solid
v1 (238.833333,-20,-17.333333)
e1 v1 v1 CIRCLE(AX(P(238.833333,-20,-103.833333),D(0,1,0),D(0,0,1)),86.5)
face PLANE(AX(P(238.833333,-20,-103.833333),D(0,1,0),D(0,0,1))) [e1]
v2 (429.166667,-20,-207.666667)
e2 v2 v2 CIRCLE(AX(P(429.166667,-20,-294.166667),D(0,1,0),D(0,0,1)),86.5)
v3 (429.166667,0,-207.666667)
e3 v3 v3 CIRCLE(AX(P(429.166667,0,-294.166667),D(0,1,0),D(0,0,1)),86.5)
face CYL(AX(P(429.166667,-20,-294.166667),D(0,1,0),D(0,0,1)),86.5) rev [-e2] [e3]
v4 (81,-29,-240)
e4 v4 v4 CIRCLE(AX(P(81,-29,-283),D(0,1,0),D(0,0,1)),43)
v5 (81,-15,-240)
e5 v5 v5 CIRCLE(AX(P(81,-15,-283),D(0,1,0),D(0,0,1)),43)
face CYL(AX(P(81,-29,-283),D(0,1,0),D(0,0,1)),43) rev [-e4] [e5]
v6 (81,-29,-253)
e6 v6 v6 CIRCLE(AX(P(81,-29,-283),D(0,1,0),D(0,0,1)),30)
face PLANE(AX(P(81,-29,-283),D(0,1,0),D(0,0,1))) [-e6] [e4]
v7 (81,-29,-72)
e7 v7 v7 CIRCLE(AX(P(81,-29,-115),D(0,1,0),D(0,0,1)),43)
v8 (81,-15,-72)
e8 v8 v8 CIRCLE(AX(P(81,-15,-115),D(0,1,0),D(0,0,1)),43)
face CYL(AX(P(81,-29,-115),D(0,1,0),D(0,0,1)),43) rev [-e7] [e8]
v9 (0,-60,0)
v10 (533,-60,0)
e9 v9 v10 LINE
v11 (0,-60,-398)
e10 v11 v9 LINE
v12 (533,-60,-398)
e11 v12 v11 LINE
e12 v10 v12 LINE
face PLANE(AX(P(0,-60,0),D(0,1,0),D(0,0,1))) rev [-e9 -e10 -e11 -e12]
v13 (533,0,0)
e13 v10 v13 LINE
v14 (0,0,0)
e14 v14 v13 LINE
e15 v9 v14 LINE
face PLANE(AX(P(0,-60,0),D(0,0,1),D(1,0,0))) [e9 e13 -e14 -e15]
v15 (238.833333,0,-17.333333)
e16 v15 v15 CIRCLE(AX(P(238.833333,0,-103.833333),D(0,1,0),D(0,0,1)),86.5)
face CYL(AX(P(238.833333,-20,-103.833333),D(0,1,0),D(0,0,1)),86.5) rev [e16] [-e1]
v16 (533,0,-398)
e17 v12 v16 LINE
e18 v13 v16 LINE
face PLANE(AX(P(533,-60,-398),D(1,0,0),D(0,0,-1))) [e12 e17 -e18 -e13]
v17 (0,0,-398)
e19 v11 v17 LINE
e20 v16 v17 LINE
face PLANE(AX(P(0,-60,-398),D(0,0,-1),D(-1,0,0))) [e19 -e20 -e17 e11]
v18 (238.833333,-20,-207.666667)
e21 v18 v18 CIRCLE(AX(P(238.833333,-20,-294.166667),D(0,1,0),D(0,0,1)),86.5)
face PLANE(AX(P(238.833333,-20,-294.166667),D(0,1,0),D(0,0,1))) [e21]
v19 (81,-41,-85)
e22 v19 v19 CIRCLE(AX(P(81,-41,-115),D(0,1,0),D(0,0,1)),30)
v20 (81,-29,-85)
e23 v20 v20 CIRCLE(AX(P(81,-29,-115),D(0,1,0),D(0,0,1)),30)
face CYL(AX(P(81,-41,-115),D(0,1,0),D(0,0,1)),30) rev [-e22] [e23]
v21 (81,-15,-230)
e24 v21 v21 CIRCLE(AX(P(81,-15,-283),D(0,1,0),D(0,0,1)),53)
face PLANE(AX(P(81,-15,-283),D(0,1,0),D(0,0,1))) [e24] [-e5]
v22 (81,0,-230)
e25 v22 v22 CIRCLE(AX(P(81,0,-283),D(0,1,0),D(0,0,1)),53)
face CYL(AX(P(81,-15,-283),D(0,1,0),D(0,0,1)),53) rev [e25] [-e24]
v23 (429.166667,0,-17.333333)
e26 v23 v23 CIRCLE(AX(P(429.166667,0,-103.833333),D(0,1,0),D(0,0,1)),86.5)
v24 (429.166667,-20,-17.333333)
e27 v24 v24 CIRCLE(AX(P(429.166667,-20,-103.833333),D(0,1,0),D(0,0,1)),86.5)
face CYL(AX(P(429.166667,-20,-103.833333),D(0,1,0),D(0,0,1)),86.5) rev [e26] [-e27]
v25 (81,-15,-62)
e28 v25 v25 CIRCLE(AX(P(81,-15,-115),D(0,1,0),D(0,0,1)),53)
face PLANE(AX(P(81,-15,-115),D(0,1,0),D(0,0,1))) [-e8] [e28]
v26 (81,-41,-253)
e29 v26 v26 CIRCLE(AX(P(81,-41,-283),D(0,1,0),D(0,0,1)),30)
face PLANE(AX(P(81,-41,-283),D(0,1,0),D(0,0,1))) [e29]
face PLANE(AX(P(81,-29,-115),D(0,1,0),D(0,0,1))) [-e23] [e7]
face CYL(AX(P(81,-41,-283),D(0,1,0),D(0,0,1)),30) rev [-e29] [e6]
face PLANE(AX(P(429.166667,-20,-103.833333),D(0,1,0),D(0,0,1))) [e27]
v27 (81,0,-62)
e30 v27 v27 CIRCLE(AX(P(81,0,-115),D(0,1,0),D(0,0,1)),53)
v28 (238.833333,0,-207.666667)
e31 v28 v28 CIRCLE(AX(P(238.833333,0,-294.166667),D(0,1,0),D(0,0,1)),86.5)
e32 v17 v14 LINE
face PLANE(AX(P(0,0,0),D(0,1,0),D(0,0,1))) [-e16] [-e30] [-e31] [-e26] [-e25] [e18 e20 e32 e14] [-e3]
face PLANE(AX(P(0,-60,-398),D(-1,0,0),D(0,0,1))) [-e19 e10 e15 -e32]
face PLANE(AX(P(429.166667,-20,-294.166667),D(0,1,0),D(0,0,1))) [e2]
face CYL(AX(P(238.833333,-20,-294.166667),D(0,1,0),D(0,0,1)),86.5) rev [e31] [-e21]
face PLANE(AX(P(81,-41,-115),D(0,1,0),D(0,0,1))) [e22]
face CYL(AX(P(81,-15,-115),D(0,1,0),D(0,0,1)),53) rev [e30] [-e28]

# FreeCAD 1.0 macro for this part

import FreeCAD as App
import Part
import Sketcher
from FreeCAD import Vector


def add_polygon(sketch, points):
    """Adds a closed chain of lines whose ends are joined by coincident constraints."""
    first, n = sketch.GeometryCount, len(points)
    for a, b in zip(points, points[1:] + points[:1]):
        sketch.addGeometry(Part.LineSegment(App.Vector(*a, 0), App.Vector(*b, 0)), False)
    for i in range(n):
        sketch.addConstraint(Sketcher.Constraint("Coincident", first + i, 2, first + (i + 1) % n, 1))

doc = App.newDocument("Part")
params = doc.addObject("Spreadsheet::Sheet", "Params")
for row, (alias, value) in enumerate([
    ("sketch1_width", "533 mm"),
    ("sketch1_height", "398 mm"),
    ("pad1_length", "60 mm"),
    ("sketch2_diameter", "173 mm"),
    ("pocket1_length", "20 mm"),
    ("sketch3_diameter", "106 mm"),
    ("pocket2_length", "15 mm"),
    ("sketch4_diameter", "86 mm"),
    ("pocket3_length", "14 mm"),
    ("sketch5_diameter", "60 mm"),
    ("pocket4_length", "12 mm"),
], start=1):
    params.set(f"A{row}", alias)
    params.set(f"B{row}", "=" + value)
    params.setAlias(f"B{row}", alias)

body = doc.addObject("PartDesign::Body", "Body")

# Sketch on XZ plane
sketch1 = body.newObject("Sketcher::SketchObject", "Sketch")
sketch1.AttachmentSupport = (doc.getObject("XZ_Plane"), [""])
sketch1.MapMode = "FlatFace"
add_polygon(sketch1, [(0, -398), (0, 0), (533, 0), (533, -398)])  # lines 0-3
sketch1.addConstraint([
    Sketcher.Constraint("Vertical", 0),
    Sketcher.Constraint("Horizontal", 1),
    Sketcher.Constraint("Vertical", 2),
    Sketcher.Constraint("Horizontal", 3),
    Sketcher.Constraint("Coincident", 0, 2, -1, 1),
    Sketcher.Constraint("DistanceX", 1, 1, 1, 2, 533.0),
    Sketcher.Constraint("DistanceY", 0, 1, 0, 2, 398.0),
])
sketch1.setExpression("Constraints[9]", "Params.sketch1_width")
sketch1.setExpression("Constraints[10]", "Params.sketch1_height")
pad1 = body.newObject("PartDesign::Pad", "Pad")
pad1.Profile = sketch1
pad1.setExpression("Length", "Params.pad1_length")

# Sketch on XZ plane
sketch2 = body.newObject("Sketcher::SketchObject", "Sketch001")
sketch2.AttachmentSupport = (doc.getObject("XZ_Plane"), [""])
sketch2.MapMode = "FlatFace"
sketch2.addGeometry([
    Part.Circle(Vector(429.166667, -103.833333, 0), Vector(0, 0, 1), 86.5),
    Part.Circle(Vector(238.833333, -103.833333, 0), Vector(0, 0, 1), 86.5),
    Part.Circle(Vector(238.833333, -294.166667, 0), Vector(0, 0, 1), 86.5),
    Part.Circle(Vector(429.166667, -294.166667, 0), Vector(0, 0, 1), 86.5),
], False)
sketch2.addConstraint([
    Sketcher.Constraint("Equal", 0, 1),
    Sketcher.Constraint("Equal", 1, 2),
    Sketcher.Constraint("Equal", 2, 3),
    Sketcher.Constraint("Horizontal", 0, 3, 1, 3),
    Sketcher.Constraint("Horizontal", 2, 3, 3, 3),
    Sketcher.Constraint("Vertical", 1, 3, 2, 3),
    Sketcher.Constraint("Vertical", 0, 3, 3, 3),
    Sketcher.Constraint("Diameter", 0, 173.0),
    Sketcher.Constraint("DistanceX", -1, 1, 0, 3, 429.166667),
    Sketcher.Constraint("DistanceY", 0, 3, -1, 1, 103.833333),
    Sketcher.Constraint("DistanceX", -1, 1, 1, 3, 238.833333),
    Sketcher.Constraint("DistanceY", 2, 3, -1, 1, 294.166667),
])
sketch2.setExpression("Constraints[7]", "Params.sketch2_diameter")
pocket1 = body.newObject("PartDesign::Pocket", "Pocket")
pocket1.Profile = sketch2
pocket1.setExpression("Length", "Params.pocket1_length")
pocket1.Reversed = True

# Sketch on XZ plane
sketch3 = body.newObject("Sketcher::SketchObject", "Sketch002")
sketch3.AttachmentSupport = (doc.getObject("XZ_Plane"), [""])
sketch3.MapMode = "FlatFace"
sketch3.addGeometry([
    Part.Circle(Vector(81, -283, 0), Vector(0, 0, 1), 53),
    Part.Circle(Vector(81, -115, 0), Vector(0, 0, 1), 53),
], False)
sketch3.addConstraint([
    Sketcher.Constraint("Equal", 0, 1),
    Sketcher.Constraint("Vertical", 0, 3, 1, 3),
    Sketcher.Constraint("Diameter", 0, 106.0),
    Sketcher.Constraint("DistanceX", -1, 1, 0, 3, 81.0),
    Sketcher.Constraint("DistanceY", 0, 3, -1, 1, 283.0),
    Sketcher.Constraint("DistanceY", 1, 3, -1, 1, 115.0),
])
sketch3.setExpression("Constraints[2]", "Params.sketch3_diameter")
pocket2 = body.newObject("PartDesign::Pocket", "Pocket001")
pocket2.Profile = sketch3
pocket2.setExpression("Length", "Params.pocket2_length")
pocket2.Reversed = True

# Sketch on XZ plane
sketch4 = body.newObject("Sketcher::SketchObject", "Sketch003")
sketch4.AttachmentSupport = (doc.getObject("XZ_Plane"), [""])
sketch4.MapMode = "FlatFace"
sketch4.AttachmentOffset = App.Placement(Vector(0, 0, 15), App.Rotation())
sketch4.addGeometry([
    Part.Circle(Vector(81, -283, 0), Vector(0, 0, 1), 43),
    Part.Circle(Vector(81, -115, 0), Vector(0, 0, 1), 43),
], False)
sketch4.addConstraint([
    Sketcher.Constraint("Equal", 0, 1),
    Sketcher.Constraint("Vertical", 0, 3, 1, 3),
    Sketcher.Constraint("Diameter", 0, 86.0),
    Sketcher.Constraint("DistanceX", -1, 1, 0, 3, 81.0),
    Sketcher.Constraint("DistanceY", 0, 3, -1, 1, 283.0),
    Sketcher.Constraint("DistanceY", 1, 3, -1, 1, 115.0),
])
sketch4.setExpression("Constraints[2]", "Params.sketch4_diameter")
pocket3 = body.newObject("PartDesign::Pocket", "Pocket002")
pocket3.Profile = sketch4
pocket3.setExpression("Length", "Params.pocket3_length")
pocket3.Reversed = True

# Sketch on XZ plane
sketch5 = body.newObject("Sketcher::SketchObject", "Sketch004")
sketch5.AttachmentSupport = (doc.getObject("XZ_Plane"), [""])
sketch5.MapMode = "FlatFace"
sketch5.AttachmentOffset = App.Placement(Vector(0, 0, 29), App.Rotation())
sketch5.addGeometry([
    Part.Circle(Vector(81, -283, 0), Vector(0, 0, 1), 30),
    Part.Circle(Vector(81, -115, 0), Vector(0, 0, 1), 30),
], False)
sketch5.addConstraint([
    Sketcher.Constraint("Equal", 0, 1),
    Sketcher.Constraint("Vertical", 0, 3, 1, 3),
    Sketcher.Constraint("Diameter", 0, 60.0),
    Sketcher.Constraint("DistanceX", -1, 1, 0, 3, 81.0),
    Sketcher.Constraint("DistanceY", 0, 3, -1, 1, 283.0),
    Sketcher.Constraint("DistanceY", 1, 3, -1, 1, 115.0),
])
sketch5.setExpression("Constraints[2]", "Params.sketch5_diameter")
pocket4 = body.newObject("PartDesign::Pocket", "Pocket003")
pocket4.Profile = sketch5
pocket4.setExpression("Length", "Params.pocket4_length")
pocket4.Reversed = True

doc.recompute()
